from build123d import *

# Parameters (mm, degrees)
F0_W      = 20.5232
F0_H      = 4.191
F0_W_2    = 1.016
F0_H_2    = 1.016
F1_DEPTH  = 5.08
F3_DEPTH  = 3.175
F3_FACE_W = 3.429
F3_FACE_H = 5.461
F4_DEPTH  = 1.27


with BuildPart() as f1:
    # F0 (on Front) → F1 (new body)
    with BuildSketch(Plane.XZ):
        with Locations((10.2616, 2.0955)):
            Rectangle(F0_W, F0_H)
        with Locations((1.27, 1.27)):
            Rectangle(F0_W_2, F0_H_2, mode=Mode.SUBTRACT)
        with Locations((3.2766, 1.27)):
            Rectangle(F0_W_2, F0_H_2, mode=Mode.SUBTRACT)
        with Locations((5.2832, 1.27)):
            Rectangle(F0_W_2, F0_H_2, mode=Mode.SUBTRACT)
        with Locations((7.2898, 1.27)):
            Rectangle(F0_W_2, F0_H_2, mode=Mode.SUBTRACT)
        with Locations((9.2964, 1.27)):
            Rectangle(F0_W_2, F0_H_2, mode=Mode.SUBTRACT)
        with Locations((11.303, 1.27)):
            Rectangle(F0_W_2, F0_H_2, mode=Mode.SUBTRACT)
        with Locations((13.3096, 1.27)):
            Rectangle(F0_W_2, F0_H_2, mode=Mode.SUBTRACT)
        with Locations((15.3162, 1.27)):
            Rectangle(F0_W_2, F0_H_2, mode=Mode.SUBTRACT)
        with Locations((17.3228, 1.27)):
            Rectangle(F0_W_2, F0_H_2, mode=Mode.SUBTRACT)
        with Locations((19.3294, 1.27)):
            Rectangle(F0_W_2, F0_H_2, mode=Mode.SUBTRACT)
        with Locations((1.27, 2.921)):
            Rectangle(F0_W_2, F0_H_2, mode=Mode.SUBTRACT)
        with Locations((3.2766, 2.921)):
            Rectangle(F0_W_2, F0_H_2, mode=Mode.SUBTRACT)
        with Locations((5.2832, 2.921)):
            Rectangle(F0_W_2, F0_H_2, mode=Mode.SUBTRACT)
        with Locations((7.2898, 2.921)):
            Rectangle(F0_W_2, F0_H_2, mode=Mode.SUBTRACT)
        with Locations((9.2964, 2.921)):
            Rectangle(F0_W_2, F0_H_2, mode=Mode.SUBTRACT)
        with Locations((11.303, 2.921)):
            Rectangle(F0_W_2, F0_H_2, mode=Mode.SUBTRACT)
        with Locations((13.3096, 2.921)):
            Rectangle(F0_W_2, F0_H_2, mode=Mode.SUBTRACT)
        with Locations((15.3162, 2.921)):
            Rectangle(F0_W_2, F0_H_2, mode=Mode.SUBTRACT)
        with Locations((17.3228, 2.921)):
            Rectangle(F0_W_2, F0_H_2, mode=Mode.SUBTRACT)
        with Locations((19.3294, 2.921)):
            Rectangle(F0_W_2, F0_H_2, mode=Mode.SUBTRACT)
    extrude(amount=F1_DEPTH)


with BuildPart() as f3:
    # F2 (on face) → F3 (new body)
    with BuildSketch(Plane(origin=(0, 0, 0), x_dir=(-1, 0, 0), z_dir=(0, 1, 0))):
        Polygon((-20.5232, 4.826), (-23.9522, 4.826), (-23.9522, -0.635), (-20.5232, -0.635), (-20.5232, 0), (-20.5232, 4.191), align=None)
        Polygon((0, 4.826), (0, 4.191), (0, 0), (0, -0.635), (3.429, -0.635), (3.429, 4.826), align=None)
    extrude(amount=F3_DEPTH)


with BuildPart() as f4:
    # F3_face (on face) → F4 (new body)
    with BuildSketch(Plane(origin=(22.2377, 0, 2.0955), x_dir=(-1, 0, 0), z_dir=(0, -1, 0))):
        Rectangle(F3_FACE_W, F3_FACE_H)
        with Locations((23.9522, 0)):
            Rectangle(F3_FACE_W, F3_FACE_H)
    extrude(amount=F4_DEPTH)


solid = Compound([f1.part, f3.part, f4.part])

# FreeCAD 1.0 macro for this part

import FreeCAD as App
import Part
import Sketcher
Q = App.Units.Quantity

doc = App.newDocument("Part")
body = doc.addObject("PartDesign::Body", "Body")

# Sketch on XZ plane
sketch1 = doc.addObject("Sketcher::SketchObject", "Sketch")
body.addObject(sketch1)
sketch1.AttachmentSupport = (doc.XZ_Plane, [""])
sketch1.MapMode = "FlatFace"
sketch1.addGeometry(Part.LineSegment(App.Vector(0, 4.2, 0), App.Vector(0, 0, 0)), False)
sketch1.addGeometry(Part.LineSegment(App.Vector(0, 0, 0), App.Vector(20.5, 0, 0)), False)
sketch1.addGeometry(Part.LineSegment(App.Vector(20.5, 0, 0), App.Vector(20.5, 4.2, 0)), False)
sketch1.addGeometry(Part.LineSegment(App.Vector(20.5, 4.2, 0), App.Vector(0, 4.2, 0)), False)
sketch1.addGeometry(Part.LineSegment(App.Vector(1.8, 0.8, 0), App.Vector(0.8, 0.8, 0)), False)
sketch1.addGeometry(Part.LineSegment(App.Vector(0.8, 0.8, 0), App.Vector(0.8, 1.8, 0)), False)
sketch1.addGeometry(Part.LineSegment(App.Vector(0.8, 1.8, 0), App.Vector(1.8, 1.8, 0)), False)
sketch1.addGeometry(Part.LineSegment(App.Vector(1.8, 1.8, 0), App.Vector(1.8, 0.8, 0)), False)
sketch1.addGeometry(Part.LineSegment(App.Vector(3.8, 0.8, 0), App.Vector(2.8, 0.8, 0)), False)
sketch1.addGeometry(Part.LineSegment(App.Vector(2.8, 0.8, 0), App.Vector(2.8, 1.8, 0)), False)
sketch1.addGeometry(Part.LineSegment(App.Vector(2.8, 1.8, 0), App.Vector(3.8, 1.8, 0)), False)
sketch1.addGeometry(Part.LineSegment(App.Vector(3.8, 1.8, 0), App.Vector(3.8, 0.8, 0)), False)
sketch1.addGeometry(Part.LineSegment(App.Vector(5.8, 0.8, 0), App.Vector(4.8, 0.8, 0)), False)
sketch1.addGeometry(Part.LineSegment(App.Vector(4.8, 0.8, 0), App.Vector(4.8, 1.8, 0)), False)
sketch1.addGeometry(Part.LineSegment(App.Vector(4.8, 1.8, 0), App.Vector(5.8, 1.8, 0)), False)
sketch1.addGeometry(Part.LineSegment(App.Vector(5.8, 1.8, 0), App.Vector(5.8, 0.8, 0)), False)
sketch1.addGeometry(Part.LineSegment(App.Vector(7.8, 0.8, 0), App.Vector(6.8, 0.8, 0)), False)
sketch1.addGeometry(Part.LineSegment(App.Vector(6.8, 0.8, 0), App.Vector(6.8, 1.8, 0)), False)
sketch1.addGeometry(Part.LineSegment(App.Vector(6.8, 1.8, 0), App.Vector(7.8, 1.8, 0)), False)
sketch1.addGeometry(Part.LineSegment(App.Vector(7.8, 1.8, 0), App.Vector(7.8, 0.8, 0)), False)
sketch1.addGeometry(Part.LineSegment(App.Vector(9.8, 0.8, 0), App.Vector(8.8, 0.8, 0)), False)
sketch1.addGeometry(Part.LineSegment(App.Vector(8.8, 0.8, 0), App.Vector(8.8, 1.8, 0)), False)
sketch1.addGeometry(Part.LineSegment(App.Vector(8.8, 1.8, 0), App.Vector(9.8, 1.8, 0)), False)
sketch1.addGeometry(Part.LineSegment(App.Vector(9.8, 1.8, 0), App.Vector(9.8, 0.8, 0)), False)
sketch1.addGeometry(Part.LineSegment(App.Vector(11.8, 0.8, 0), App.Vector(10.8, 0.8, 0)), False)
sketch1.addGeometry(Part.LineSegment(App.Vector(10.8, 0.8, 0), App.Vector(10.8, 1.8, 0)), False)
sketch1.addGeometry(Part.LineSegment(App.Vector(10.8, 1.8, 0), App.Vector(11.8, 1.8, 0)), False)
sketch1.addGeometry(Part.LineSegment(App.Vector(11.8, 1.8, 0), App.Vector(11.8, 0.8, 0)), False)
sketch1.addGeometry(Part.LineSegment(App.Vector(13.8, 0.8, 0), App.Vector(12.8, 0.8, 0)), False)
sketch1.addGeometry(Part.LineSegment(App.Vector(12.8, 0.8, 0), App.Vector(12.8, 1.8, 0)), False)
sketch1.addGeometry(Part.LineSegment(App.Vector(12.8, 1.8, 0), App.Vector(13.8, 1.8, 0)), False)
sketch1.addGeometry(Part.LineSegment(App.Vector(13.8, 1.8, 0), App.Vector(13.8, 0.8, 0)), False)
sketch1.addGeometry(Part.LineSegment(App.Vector(15.8, 0.8, 0), App.Vector(14.8, 0.8, 0)), False)
sketch1.addGeometry(Part.LineSegment(App.Vector(14.8, 0.8, 0), App.Vector(14.8, 1.8, 0)), False)
sketch1.addGeometry(Part.LineSegment(App.Vector(14.8, 1.8, 0), App.Vector(15.8, 1.8, 0)), False)
sketch1.addGeometry(Part.LineSegment(App.Vector(15.8, 1.8, 0), App.Vector(15.8, 0.8, 0)), False)
sketch1.addGeometry(Part.LineSegment(App.Vector(17.8, 0.8, 0), App.Vector(16.8, 0.8, 0)), False)
sketch1.addGeometry(Part.LineSegment(App.Vector(16.8, 0.8, 0), App.Vector(16.8, 1.8, 0)), False)
sketch1.addGeometry(Part.LineSegment(App.Vector(16.8, 1.8, 0), App.Vector(17.8, 1.8, 0)), False)
sketch1.addGeometry(Part.LineSegment(App.Vector(17.8, 1.8, 0), App.Vector(17.8, 0.8, 0)), False)
sketch1.addGeometry(Part.LineSegment(App.Vector(19.8, 0.8, 0), App.Vector(18.8, 0.8, 0)), False)
sketch1.addGeometry(Part.LineSegment(App.Vector(18.8, 0.8, 0), App.Vector(18.8, 1.8, 0)), False)
sketch1.addGeometry(Part.LineSegment(App.Vector(18.8, 1.8, 0), App.Vector(19.8, 1.8, 0)), False)
sketch1.addGeometry(Part.LineSegment(App.Vector(19.8, 1.8, 0), App.Vector(19.8, 0.8, 0)), False)
sketch1.addGeometry(Part.LineSegment(App.Vector(1.8, 2.4, 0), App.Vector(0.8, 2.4, 0)), False)
sketch1.addGeometry(Part.LineSegment(App.Vector(0.8, 2.4, 0), App.Vector(0.8, 3.4, 0)), False)
sketch1.addGeometry(Part.LineSegment(App.Vector(0.8, 3.4, 0), App.Vector(1.8, 3.4, 0)), False)
sketch1.addGeometry(Part.LineSegment(App.Vector(1.8, 3.4, 0), App.Vector(1.8, 2.4, 0)), False)
sketch1.addGeometry(Part.LineSegment(App.Vector(3.8, 2.4, 0), App.Vector(2.8, 2.4, 0)), False)
sketch1.addGeometry(Part.LineSegment(App.Vector(2.8, 2.4, 0), App.Vector(2.8, 3.4, 0)), False)
sketch1.addGeometry(Part.LineSegment(App.Vector(2.8, 3.4, 0), App.Vector(3.8, 3.4, 0)), False)
sketch1.addGeometry(Part.LineSegment(App.Vector(3.8, 3.4, 0), App.Vector(3.8, 2.4, 0)), False)
sketch1.addGeometry(Part.LineSegment(App.Vector(5.8, 2.4, 0), App.Vector(4.8, 2.4, 0)), False)
sketch1.addGeometry(Part.LineSegment(App.Vector(4.8, 2.4, 0), App.Vector(4.8, 3.4, 0)), False)
sketch1.addGeometry(Part.LineSegment(App.Vector(4.8, 3.4, 0), App.Vector(5.8, 3.4, 0)), False)
sketch1.addGeometry(Part.LineSegment(App.Vector(5.8, 3.4, 0), App.Vector(5.8, 2.4, 0)), False)
sketch1.addGeometry(Part.LineSegment(App.Vector(7.8, 2.4, 0), App.Vector(6.8, 2.4, 0)), False)
sketch1.addGeometry(Part.LineSegment(App.Vector(6.8, 2.4, 0), App.Vector(6.8, 3.4, 0)), False)
sketch1.addGeometry(Part.LineSegment(App.Vector(6.8, 3.4, 0), App.Vector(7.8, 3.4, 0)), False)
sketch1.addGeometry(Part.LineSegment(App.Vector(7.8, 3.4, 0), App.Vector(7.8, 2.4, 0)), False)
sketch1.addGeometry(Part.LineSegment(App.Vector(9.8, 2.4, 0), App.Vector(8.8, 2.4, 0)), False)
sketch1.addGeometry(Part.LineSegment(App.Vector(8.8, 2.4, 0), App.Vector(8.8, 3.4, 0)), False)
sketch1.addGeometry(Part.LineSegment(App.Vector(8.8, 3.4, 0), App.Vector(9.8, 3.4, 0)), False)
sketch1.addGeometry(Part.LineSegment(App.Vector(9.8, 3.4, 0), App.Vector(9.8, 2.4, 0)), False)
sketch1.addGeometry(Part.LineSegment(App.Vector(11.8, 2.4, 0), App.Vector(10.8, 2.4, 0)), False)
sketch1.addGeometry(Part.LineSegment(App.Vector(10.8, 2.4, 0), App.Vector(10.8, 3.4, 0)), False)
sketch1.addGeometry(Part.LineSegment(App.Vector(10.8, 3.4, 0), App.Vector(11.8, 3.4, 0)), False)
sketch1.addGeometry(Part.LineSegment(App.Vector(11.8, 3.4, 0), App.Vector(11.8, 2.4, 0)), False)
sketch1.addGeometry(Part.LineSegment(App.Vector(13.8, 2.4, 0), App.Vector(12.8, 2.4, 0)), False)
sketch1.addGeometry(Part.LineSegment(App.Vector(12.8, 2.4, 0), App.Vector(12.8, 3.4, 0)), False)
sketch1.addGeometry(Part.LineSegment(App.Vector(12.8, 3.4, 0), App.Vector(13.8, 3.4, 0)), False)
sketch1.addGeometry(Part.LineSegment(App.Vector(13.8, 3.4, 0), App.Vector(13.8, 2.4, 0)), False)
sketch1.addGeometry(Part.LineSegment(App.Vector(15.8, 2.4, 0), App.Vector(14.8, 2.4, 0)), False)
sketch1.addGeometry(Part.LineSegment(App.Vector(14.8, 2.4, 0), App.Vector(14.8, 3.4, 0)), False)
sketch1.addGeometry(Part.LineSegment(App.Vector(14.8, 3.4, 0), App.Vector(15.8, 3.4, 0)), False)
sketch1.addGeometry(Part.LineSegment(App.Vector(15.8, 3.4, 0), App.Vector(15.8, 2.4, 0)), False)
sketch1.addGeometry(Part.LineSegment(App.Vector(17.8, 2.4, 0), App.Vector(16.8, 2.4, 0)), False)
sketch1.addGeometry(Part.LineSegment(App.Vector(16.8, 2.4, 0), App.Vector(16.8, 3.4, 0)), False)
sketch1.addGeometry(Part.LineSegment(App.Vector(16.8, 3.4, 0), App.Vector(17.8, 3.4, 0)), False)
sketch1.addGeometry(Part.LineSegment(App.Vector(17.8, 3.4, 0), App.Vector(17.8, 2.4, 0)), False)
sketch1.addGeometry(Part.LineSegment(App.Vector(19.8, 2.4, 0), App.Vector(18.8, 2.4, 0)), False)
sketch1.addGeometry(Part.LineSegment(App.Vector(18.8, 2.4, 0), App.Vector(18.8, 3.4, 0)), False)
sketch1.addGeometry(Part.LineSegment(App.Vector(18.8, 3.4, 0), App.Vector(19.8, 3.4, 0)), False)
sketch1.addGeometry(Part.LineSegment(App.Vector(19.8, 3.4, 0), App.Vector(19.8, 2.4, 0)), False)
sketch1.addConstraint(Sketcher.Constraint("Coincident", 0, 2, 1, 1))
sketch1.addConstraint(Sketcher.Constraint("Coincident", 1, 2, 2, 1))
sketch1.addConstraint(Sketcher.Constraint("Coincident", 2, 2, 3, 1))
sketch1.addConstraint(Sketcher.Constraint("Coincident", 3, 2, 0, 1))
sketch1.addConstraint(Sketcher.Constraint("Coincident", 4, 2, 5, 1))
sketch1.addConstraint(Sketcher.Constraint("Coincident", 5, 2, 6, 1))
sketch1.addConstraint(Sketcher.Constraint("Coincident", 6, 2, 7, 1))
sketch1.addConstraint(Sketcher.Constraint("Coincident", 7, 2, 4, 1))
sketch1.addConstraint(Sketcher.Constraint("Coincident", 8, 2, 9, 1))
sketch1.addConstraint(Sketcher.Constraint("Coincident", 9, 2, 10, 1))
sketch1.addConstraint(Sketcher.Constraint("Coincident", 10, 2, 11, 1))
sketch1.addConstraint(Sketcher.Constraint("Coincident", 11, 2, 8, 1))
sketch1.addConstraint(Sketcher.Constraint("Coincident", 12, 2, 13, 1))
sketch1.addConstraint(Sketcher.Constraint("Coincident", 13, 2, 14, 1))
sketch1.addConstraint(Sketcher.Constraint("Coincident", 14, 2, 15, 1))
sketch1.addConstraint(Sketcher.Constraint("Coincident", 15, 2, 12, 1))
sketch1.addConstraint(Sketcher.Constraint("Coincident", 16, 2, 17, 1))
sketch1.addConstraint(Sketcher.Constraint("Coincident", 17, 2, 18, 1))
sketch1.addConstraint(Sketcher.Constraint("Coincident", 18, 2, 19, 1))
sketch1.addConstraint(Sketcher.Constraint("Coincident", 19, 2, 16, 1))
sketch1.addConstraint(Sketcher.Constraint("Coincident", 20, 2, 21, 1))
sketch1.addConstraint(Sketcher.Constraint("Coincident", 21, 2, 22, 1))
sketch1.addConstraint(Sketcher.Constraint("Coincident", 22, 2, 23, 1))
sketch1.addConstraint(Sketcher.Constraint("Coincident", 23, 2, 20, 1))
sketch1.addConstraint(Sketcher.Constraint("Coincident", 24, 2, 25, 1))
sketch1.addConstraint(Sketcher.Constraint("Coincident", 25, 2, 26, 1))
sketch1.addConstraint(Sketcher.Constraint("Coincident", 26, 2, 27, 1))
sketch1.addConstraint(Sketcher.Constraint("Coincident", 27, 2, 24, 1))
sketch1.addConstraint(Sketcher.Constraint("Coincident", 28, 2, 29, 1))
sketch1.addConstraint(Sketcher.Constraint("Coincident", 29, 2, 30, 1))
sketch1.addConstraint(Sketcher.Constraint("Coincident", 30, 2, 31, 1))
sketch1.addConstraint(Sketcher.Constraint("Coincident", 31, 2, 28, 1))
sketch1.addConstraint(Sketcher.Constraint("Coincident", 32, 2, 33, 1))
sketch1.addConstraint(Sketcher.Constraint("Coincident", 33, 2, 34, 1))
sketch1.addConstraint(Sketcher.Constraint("Coincident", 34, 2, 35, 1))
sketch1.addConstraint(Sketcher.Constraint("Coincident", 35, 2, 32, 1))
sketch1.addConstraint(Sketcher.Constraint("Coincident", 36, 2, 37, 1))
sketch1.addConstraint(Sketcher.Constraint("Coincident", 37, 2, 38, 1))
sketch1.addConstraint(Sketcher.Constraint("Coincident", 38, 2, 39, 1))
sketch1.addConstraint(Sketcher.Constraint("Coincident", 39, 2, 36, 1))
sketch1.addConstraint(Sketcher.Constraint("Coincident", 40, 2, 41, 1))
sketch1.addConstraint(Sketcher.Constraint("Coincident", 41, 2, 42, 1))
sketch1.addConstraint(Sketcher.Constraint("Coincident", 42, 2, 43, 1))
sketch1.addConstraint(Sketcher.Constraint("Coincident", 43, 2, 40, 1))
sketch1.addConstraint(Sketcher.Constraint("Coincident", 44, 2, 45, 1))
sketch1.addConstraint(Sketcher.Constraint("Coincident", 45, 2, 46, 1))
sketch1.addConstraint(Sketcher.Constraint("Coincident", 46, 2, 47, 1))
sketch1.addConstraint(Sketcher.Constraint("Coincident", 47, 2, 44, 1))
sketch1.addConstraint(Sketcher.Constraint("Coincident", 48, 2, 49, 1))
sketch1.addConstraint(Sketcher.Constraint("Coincident", 49, 2, 50, 1))
sketch1.addConstraint(Sketcher.Constraint("Coincident", 50, 2, 51, 1))
sketch1.addConstraint(Sketcher.Constraint("Coincident", 51, 2, 48, 1))
sketch1.addConstraint(Sketcher.Constraint("Coincident", 52, 2, 53, 1))
sketch1.addConstraint(Sketcher.Constraint("Coincident", 53, 2, 54, 1))
sketch1.addConstraint(Sketcher.Constraint("Coincident", 54, 2, 55, 1))
sketch1.addConstraint(Sketcher.Constraint("Coincident", 55, 2, 52, 1))
sketch1.addConstraint(Sketcher.Constraint("Coincident", 56, 2, 57, 1))
sketch1.addConstraint(Sketcher.Constraint("Coincident", 57, 2, 58, 1))
sketch1.addConstraint(Sketcher.Constraint("Coincident", 58, 2, 59, 1))
sketch1.addConstraint(Sketcher.Constraint("Coincident", 59, 2, 56, 1))
sketch1.addConstraint(Sketcher.Constraint("Coincident", 60, 2, 61, 1))
sketch1.addConstraint(Sketcher.Constraint("Coincident", 61, 2, 62, 1))
sketch1.addConstraint(Sketcher.Constraint("Coincident", 62, 2, 63, 1))
sketch1.addConstraint(Sketcher.Constraint("Coincident", 63, 2, 60, 1))
sketch1.addConstraint(Sketcher.Constraint("Coincident", 64, 2, 65, 1))
sketch1.addConstraint(Sketcher.Constraint("Coincident", 65, 2, 66, 1))
sketch1.addConstraint(Sketcher.Constraint("Coincident", 66, 2, 67, 1))
sketch1.addConstraint(Sketcher.Constraint("Coincident", 67, 2, 64, 1))
sketch1.addConstraint(Sketcher.Constraint("Coincident", 68, 2, 69, 1))
sketch1.addConstraint(Sketcher.Constraint("Coincident", 69, 2, 70, 1))
sketch1.addConstraint(Sketcher.Constraint("Coincident", 70, 2, 71, 1))
sketch1.addConstraint(Sketcher.Constraint("Coincident", 71, 2, 68, 1))
sketch1.addConstraint(Sketcher.Constraint("Coincident", 72, 2, 73, 1))
sketch1.addConstraint(Sketcher.Constraint("Coincident", 73, 2, 74, 1))
sketch1.addConstraint(Sketcher.Constraint("Coincident", 74, 2, 75, 1))
sketch1.addConstraint(Sketcher.Constraint("Coincident", 75, 2, 72, 1))
sketch1.addConstraint(Sketcher.Constraint("Coincident", 76, 2, 77, 1))
sketch1.addConstraint(Sketcher.Constraint("Coincident", 77, 2, 78, 1))
sketch1.addConstraint(Sketcher.Constraint("Coincident", 78, 2, 79, 1))
sketch1.addConstraint(Sketcher.Constraint("Coincident", 79, 2, 76, 1))
sketch1.addConstraint(Sketcher.Constraint("Coincident", 80, 2, 81, 1))
sketch1.addConstraint(Sketcher.Constraint("Coincident", 81, 2, 82, 1))
sketch1.addConstraint(Sketcher.Constraint("Coincident", 82, 2, 83, 1))
sketch1.addConstraint(Sketcher.Constraint("Coincident", 83, 2, 80, 1))
sketch1.addConstraint(Sketcher.Constraint("Vertical", 0))
sketch1.addConstraint(Sketcher.Constraint("Horizontal", 1))
sketch1.addConstraint(Sketcher.Constraint("Vertical", 2))
sketch1.addConstraint(Sketcher.Constraint("Horizontal", 3))
sketch1.addConstraint(Sketcher.Constraint("Horizontal", 4))
sketch1.addConstraint(Sketcher.Constraint("Vertical", 5))
sketch1.addConstraint(Sketcher.Constraint("Horizontal", 6))
sketch1.addConstraint(Sketcher.Constraint("Vertical", 7))
sketch1.addConstraint(Sketcher.Constraint("Horizontal", 8))
sketch1.addConstraint(Sketcher.Constraint("Vertical", 9))
sketch1.addConstraint(Sketcher.Constraint("Horizontal", 10))
sketch1.addConstraint(Sketcher.Constraint("Vertical", 11))
sketch1.addConstraint(Sketcher.Constraint("Horizontal", 12))
sketch1.addConstraint(Sketcher.Constraint("Vertical", 13))
sketch1.addConstraint(Sketcher.Constraint("Horizontal", 14))
sketch1.addConstraint(Sketcher.Constraint("Vertical", 15))
sketch1.addConstraint(Sketcher.Constraint("Horizontal", 16))
sketch1.addConstraint(Sketcher.Constraint("Vertical", 17))
sketch1.addConstraint(Sketcher.Constraint("Horizontal", 18))
sketch1.addConstraint(Sketcher.Constraint("Vertical", 19))
sketch1.addConstraint(Sketcher.Constraint("Horizontal", 20))
sketch1.addConstraint(Sketcher.Constraint("Vertical", 21))
sketch1.addConstraint(Sketcher.Constraint("Horizontal", 22))
sketch1.addConstraint(Sketcher.Constraint("Vertical", 23))
sketch1.addConstraint(Sketcher.Constraint("Horizontal", 24))
sketch1.addConstraint(Sketcher.Constraint("Vertical", 25))
sketch1.addConstraint(Sketcher.Constraint("Horizontal", 26))
sketch1.addConstraint(Sketcher.Constraint("Vertical", 27))
sketch1.addConstraint(Sketcher.Constraint("Horizontal", 28))
sketch1.addConstraint(Sketcher.Constraint("Vertical", 29))
sketch1.addConstraint(Sketcher.Constraint("Horizontal", 30))
sketch1.addConstraint(Sketcher.Constraint("Vertical", 31))
sketch1.addConstraint(Sketcher.Constraint("Horizontal", 32))
sketch1.addConstraint(Sketcher.Constraint("Vertical", 33))
sketch1.addConstraint(Sketcher.Constraint("Horizontal", 34))
sketch1.addConstraint(Sketcher.Constraint("Vertical", 35))
sketch1.addConstraint(Sketcher.Constraint("Horizontal", 36))
sketch1.addConstraint(Sketcher.Constraint("Vertical", 37))
sketch1.addConstraint(Sketcher.Constraint("Horizontal", 38))
sketch1.addConstraint(Sketcher.Constraint("Vertical", 39))
sketch1.addConstraint(Sketcher.Constraint("Horizontal", 40))
sketch1.addConstraint(Sketcher.Constraint("Vertical", 41))
sketch1.addConstraint(Sketcher.Constraint("Horizontal", 42))
sketch1.addConstraint(Sketcher.Constraint("Vertical", 43))
sketch1.addConstraint(Sketcher.Constraint("Horizontal", 44))
sketch1.addConstraint(Sketcher.Constraint("Vertical", 45))
sketch1.addConstraint(Sketcher.Constraint("Horizontal", 46))
sketch1.addConstraint(Sketcher.Constraint("Vertical", 47))
sketch1.addConstraint(Sketcher.Constraint("Horizontal", 48))
sketch1.addConstraint(Sketcher.Constraint("Vertical", 49))
sketch1.addConstraint(Sketcher.Constraint("Horizontal", 50))
sketch1.addConstraint(Sketcher.Constraint("Vertical", 51))
sketch1.addConstraint(Sketcher.Constraint("Horizontal", 52))
sketch1.addConstraint(Sketcher.Constraint("Vertical", 53))
sketch1.addConstraint(Sketcher.Constraint("Horizontal", 54))
sketch1.addConstraint(Sketcher.Constraint("Vertical", 55))
sketch1.addConstraint(Sketcher.Constraint("Horizontal", 56))
sketch1.addConstraint(Sketcher.Constraint("Vertical", 57))
sketch1.addConstraint(Sketcher.Constraint("Horizontal", 58))
sketch1.addConstraint(Sketcher.Constraint("Vertical", 59))
sketch1.addConstraint(Sketcher.Constraint("Horizontal", 60))
sketch1.addConstraint(Sketcher.Constraint("Vertical", 61))
sketch1.addConstraint(Sketcher.Constraint("Horizontal", 62))
sketch1.addConstraint(Sketcher.Constraint("Vertical", 63))
sketch1.addConstraint(Sketcher.Constraint("Horizontal", 64))
sketch1.addConstraint(Sketcher.Constraint("Vertical", 65))
sketch1.addConstraint(Sketcher.Constraint("Horizontal", 66))
sketch1.addConstraint(Sketcher.Constraint("Vertical", 67))
sketch1.addConstraint(Sketcher.Constraint("Horizontal", 68))
sketch1.addConstraint(Sketcher.Constraint("Vertical", 69))
sketch1.addConstraint(Sketcher.Constraint("Horizontal", 70))
sketch1.addConstraint(Sketcher.Constraint("Vertical", 71))
sketch1.addConstraint(Sketcher.Constraint("Horizontal", 72))
sketch1.addConstraint(Sketcher.Constraint("Vertical", 73))
sketch1.addConstraint(Sketcher.Constraint("Horizontal", 74))
sketch1.addConstraint(Sketcher.Constraint("Vertical", 75))
sketch1.addConstraint(Sketcher.Constraint("Horizontal", 76))
sketch1.addConstraint(Sketcher.Constraint("Vertical", 77))
sketch1.addConstraint(Sketcher.Constraint("Horizontal", 78))
sketch1.addConstraint(Sketcher.Constraint("Vertical", 79))
sketch1.addConstraint(Sketcher.Constraint("Horizontal", 80))
sketch1.addConstraint(Sketcher.Constraint("Vertical", 81))
sketch1.addConstraint(Sketcher.Constraint("Horizontal", 82))
sketch1.addConstraint(Sketcher.Constraint("Vertical", 83))
sketch1.addConstraint(Sketcher.Constraint("Coincident", 0, 2, -1, 1))
sketch1.addConstraint(Sketcher.Constraint("Horizontal", 7, 2, 8, 2))
sketch1.addConstraint(Sketcher.Constraint("Horizontal", 6, 2, 9, 2))
sketch1.addConstraint(Sketcher.Constraint("Horizontal", 11, 2, 12, 2))
sketch1.addConstraint(Sketcher.Constraint("Horizontal", 10, 2, 13, 2))
sketch1.addConstraint(Sketcher.Constraint("Horizontal", 15, 2, 16, 2))
sketch1.addConstraint(Sketcher.Constraint("Horizontal", 14, 2, 17, 2))
sketch1.addConstraint(Sketcher.Constraint("Horizontal", 19, 2, 20, 2))
sketch1.addConstraint(Sketcher.Constraint("Horizontal", 18, 2, 21, 2))
sketch1.addConstraint(Sketcher.Constraint("Horizontal", 23, 2, 24, 2))
sketch1.addConstraint(Sketcher.Constraint("Horizontal", 22, 2, 25, 2))
sketch1.addConstraint(Sketcher.Constraint("Horizontal", 27, 2, 28, 2))
sketch1.addConstraint(Sketcher.Constraint("Horizontal", 26, 2, 29, 2))
sketch1.addConstraint(Sketcher.Constraint("Horizontal", 31, 2, 32, 2))
sketch1.addConstraint(Sketcher.Constraint("Horizontal", 30, 2, 33, 2))
sketch1.addConstraint(Sketcher.Constraint("Horizontal", 35, 2, 36, 2))
sketch1.addConstraint(Sketcher.Constraint("Horizontal", 34, 2, 37, 2))
sketch1.addConstraint(Sketcher.Constraint("Horizontal", 39, 2, 40, 2))
sketch1.addConstraint(Sketcher.Constraint("Horizontal", 38, 2, 41, 2))
sketch1.addConstraint(Sketcher.Constraint("Horizontal", 47, 2, 48, 2))
sketch1.addConstraint(Sketcher.Constraint("Horizontal", 46, 2, 49, 2))
sketch1.addConstraint(Sketcher.Constraint("Horizontal", 51, 2, 52, 2))
sketch1.addConstraint(Sketcher.Constraint("Horizontal", 50, 2, 53, 2))
sketch1.addConstraint(Sketcher.Constraint("Horizontal", 55, 2, 56, 2))
sketch1.addConstraint(Sketcher.Constraint("Horizontal", 54, 2, 57, 2))
sketch1.addConstraint(Sketcher.Constraint("Horizontal", 59, 2, 60, 2))
sketch1.addConstraint(Sketcher.Constraint("Horizontal", 58, 2, 61, 2))
sketch1.addConstraint(Sketcher.Constraint("Horizontal", 63, 2, 64, 2))
sketch1.addConstraint(Sketcher.Constraint("Horizontal", 62, 2, 65, 2))
sketch1.addConstraint(Sketcher.Constraint("Horizontal", 67, 2, 68, 2))
sketch1.addConstraint(Sketcher.Constraint("Horizontal", 66, 2, 69, 2))
sketch1.addConstraint(Sketcher.Constraint("Horizontal", 71, 2, 72, 2))
sketch1.addConstraint(Sketcher.Constraint("Horizontal", 70, 2, 73, 2))
sketch1.addConstraint(Sketcher.Constraint("Horizontal", 75, 2, 76, 2))
sketch1.addConstraint(Sketcher.Constraint("Horizontal", 74, 2, 77, 2))
sketch1.addConstraint(Sketcher.Constraint("Horizontal", 79, 2, 80, 2))
sketch1.addConstraint(Sketcher.Constraint("Horizontal", 78, 2, 81, 2))
sketch1.addConstraint(Sketcher.Constraint("Vertical", 5, 2, 44, 2))
sketch1.addConstraint(Sketcher.Constraint("Vertical", 7, 2, 46, 2))
sketch1.addConstraint(Sketcher.Constraint("Vertical", 9, 2, 48, 2))
sketch1.addConstraint(Sketcher.Constraint("Vertical", 11, 2, 50, 2))
sketch1.addConstraint(Sketcher.Constraint("Vertical", 13, 2, 52, 2))
sketch1.addConstraint(Sketcher.Constraint("Vertical", 15, 2, 54, 2))
sketch1.addConstraint(Sketcher.Constraint("Vertical", 17, 2, 56, 2))
sketch1.addConstraint(Sketcher.Constraint("Vertical", 19, 2, 58, 2))
sketch1.addConstraint(Sketcher.Constraint("Vertical", 21, 2, 60, 2))
sketch1.addConstraint(Sketcher.Constraint("Vertical", 23, 2, 62, 2))
sketch1.addConstraint(Sketcher.Constraint("Vertical", 25, 2, 64, 2))
sketch1.addConstraint(Sketcher.Constraint("Vertical", 27, 2, 66, 2))
sketch1.addConstraint(Sketcher.Constraint("Vertical", 29, 2, 68, 2))
sketch1.addConstraint(Sketcher.Constraint("Vertical", 31, 2, 70, 2))
sketch1.addConstraint(Sketcher.Constraint("Vertical", 33, 2, 72, 2))
sketch1.addConstraint(Sketcher.Constraint("Vertical", 35, 2, 74, 2))
sketch1.addConstraint(Sketcher.Constraint("Vertical", 37, 2, 76, 2))
sketch1.addConstraint(Sketcher.Constraint("Vertical", 39, 2, 78, 2))
sketch1.addConstraint(Sketcher.Constraint("Vertical", 41, 2, 80, 2))
sketch1.addConstraint(Sketcher.Constraint("Vertical", 43, 2, 82, 2))
sketch1.addConstraint(Sketcher.Constraint("Equal", 6, 8))
sketch1.addConstraint(Sketcher.Constraint("Equal", 10, 12))
sketch1.addConstraint(Sketcher.Constraint("Equal", 14, 16))
sketch1.addConstraint(Sketcher.Constraint("Equal", 18, 20))
sketch1.addConstraint(Sketcher.Constraint("Equal", 22, 24))
sketch1.addConstraint(Sketcher.Constraint("Equal", 26, 28))
sketch1.addConstraint(Sketcher.Constraint("Equal", 30, 32))
sketch1.addConstraint(Sketcher.Constraint("Equal", 34, 36))
sketch1.addConstraint(Sketcher.Constraint("Equal", 38, 40))
sketch1.addConstraint(Sketcher.Constraint("Equal", 82, 5))
sketch1.addConstraint(Sketcher.Constraint("Equal", 43, 45))
sketch1.addConstraint(Sketcher.Constraint("DistanceX", 4, 2, 4, 1, Q("0.04 in")))
sketch1.addConstraint(Sketcher.Constraint("DistanceX", 1, 1, 1, 2, Q("0.808 in")))
sketch1.addConstraint(Sketcher.Constraint("DistanceY", 0, 2, 0, 1, Q("0.165 in")))
sketch1.addConstraint(Sketcher.Constraint("DistanceX", -1, 1, 4, 2, Q("0.03 in")))
sketch1.addConstraint(Sketcher.Constraint("DistanceY", -1, 1, 4, 2, Q("0.03 in")))
sketch1.addConstraint(Sketcher.Constraint("DistanceX", -1, 1, 8, 2, Q("0.109 in")))
sketch1.addConstraint(Sketcher.Constraint("DistanceX", -1, 1, 12, 2, Q("0.188 in")))
sketch1.addConstraint(Sketcher.Constraint("DistanceX", -1, 1, 16, 2, Q("0.267 in")))
sketch1.addConstraint(Sketcher.Constraint("DistanceX", -1, 1, 20, 2, Q("0.346 in")))
sketch1.addConstraint(Sketcher.Constraint("DistanceX", -1, 1, 24, 2, Q("0.425 in")))
sketch1.addConstraint(Sketcher.Constraint("DistanceX", -1, 1, 28, 2, Q("0.504 in")))
sketch1.addConstraint(Sketcher.Constraint("DistanceX", -1, 1, 32, 2, Q("0.583 in")))
sketch1.addConstraint(Sketcher.Constraint("DistanceX", -1, 1, 36, 2, Q("0.662 in")))
sketch1.addConstraint(Sketcher.Constraint("DistanceX", -1, 1, 40, 2, Q("0.741 in")))
sketch1.addConstraint(Sketcher.Constraint("DistanceY", -1, 1, 44, 2, Q("0.095 in")))
pad1 = doc.addObject("PartDesign::Pad", "Pad")
body.addObject(pad1)
pad1.Profile = sketch1
pad1.Length = Q("0.2 in")
body2 = doc.addObject("PartDesign::Body", "Body001")
body2.AllowCompound = True

# Sketch on XZ plane
sketch2 = doc.addObject("Sketcher::SketchObject", "Sketch001")
body2.addObject(sketch2)
sketch2.AttachmentSupport = (doc.getObject("XZ_Plane001"), [""])
sketch2.MapMode = "FlatFace"
sketch2.addGeometry(Part.LineSegment(App.Vector(20.5, 4.8, 0), App.Vector(24, 4.8, 0)), False)
sketch2.addGeometry(Part.LineSegment(App.Vector(24, 4.8, 0), App.Vector(24, -0.6, 0)), False)
sketch2.addGeometry(Part.LineSegment(App.Vector(24, -0.6, 0), App.Vector(20.5, -0.6, 0)), False)
sketch2.addGeometry(Part.LineSegment(App.Vector(20.5, -0.6, 0), App.Vector(20.5, 4.8, 0)), False)
sketch2.addGeometry(Part.LineSegment(App.Vector(0, 4.8, 0), App.Vector(0, -0.6, 0)), False)
sketch2.addGeometry(Part.LineSegment(App.Vector(0, -0.6, 0), App.Vector(-3.4, -0.6, 0)), False)
sketch2.addGeometry(Part.LineSegment(App.Vector(-3.4, -0.6, 0), App.Vector(-3.4, 4.8, 0)), False)
sketch2.addGeometry(Part.LineSegment(App.Vector(-3.4, 4.8, 0), App.Vector(0, 4.8, 0)), False)
sketch2.addConstraint(Sketcher.Constraint("Coincident", 0, 2, 1, 1))
sketch2.addConstraint(Sketcher.Constraint("Coincident", 1, 2, 2, 1))
sketch2.addConstraint(Sketcher.Constraint("Coincident", 2, 2, 3, 1))
sketch2.addConstraint(Sketcher.Constraint("Coincident", 3, 2, 0, 1))
sketch2.addConstraint(Sketcher.Constraint("Coincident", 4, 2, 5, 1))
sketch2.addConstraint(Sketcher.Constraint("Coincident", 5, 2, 6, 1))
sketch2.addConstraint(Sketcher.Constraint("Coincident", 6, 2, 7, 1))
sketch2.addConstraint(Sketcher.Constraint("Coincident", 7, 2, 4, 1))
sketch2.addConstraint(Sketcher.Constraint("Horizontal", 0))
sketch2.addConstraint(Sketcher.Constraint("Vertical", 1))
sketch2.addConstraint(Sketcher.Constraint("Horizontal", 2))
sketch2.addConstraint(Sketcher.Constraint("Vertical", 3))
sketch2.addConstraint(Sketcher.Constraint("Vertical", 4))
sketch2.addConstraint(Sketcher.Constraint("Horizontal", 5))
sketch2.addConstraint(Sketcher.Constraint("Vertical", 6))
sketch2.addConstraint(Sketcher.Constraint("Horizontal", 7))
sketch2.addConstraint(Sketcher.Constraint("PointOnObject", 4, 2, -2))
sketch2.addConstraint(Sketcher.Constraint("Horizontal", 2, 2, 4, 2))
sketch2.addConstraint(Sketcher.Constraint("Horizontal", 3, 2, 6, 2))
sketch2.addConstraint(Sketcher.Constraint("Equal", 2, 5))
sketch2.addConstraint(Sketcher.Constraint("DistanceX", 0, 1, 0, 2, Q("0.135 in")))
sketch2.addConstraint(Sketcher.Constraint("DistanceY", 1, 2, 1, 1, Q("0.215 in")))
sketch2.addConstraint(Sketcher.Constraint("DistanceY", -1, 1, 0, 2, Q("0.19 in")))
sketch2.addConstraint(Sketcher.Constraint("DistanceX", -1, 1, 0, 2, Q("0.943 in")))
pad2 = doc.addObject("PartDesign::Pad", "Pad001")
body2.addObject(pad2)
pad2.Profile = sketch2
pad2.Length = Q("0.125 in")
pad2.Reversed = True
body3 = doc.addObject("PartDesign::Body", "Body002")
body3.AllowCompound = True

# Sketch on XZ plane
sketch3 = doc.addObject("Sketcher::SketchObject", "Sketch002")
body3.addObject(sketch3)
sketch3.AttachmentSupport = (doc.getObject("XZ_Plane002"), [""])
sketch3.MapMode = "FlatFace"
sketch3.addGeometry(Part.LineSegment(App.Vector(24, -0.6, 0), App.Vector(24, 4.8, 0)), False)
sketch3.addGeometry(Part.LineSegment(App.Vector(24, 4.8, 0), App.Vector(20.5, 4.8, 0)), False)
sketch3.addGeometry(Part.LineSegment(App.Vector(20.5, 4.8, 0), App.Vector(20.5, -0.6, 0)), False)
sketch3.addGeometry(Part.LineSegment(App.Vector(20.5, -0.6, 0), App.Vector(24, -0.6, 0)), False)
sketch3.addGeometry(Part.LineSegment(App.Vector(0, -0.6, 0), App.Vector(0, 4.8, 0)), False)
sketch3.addGeometry(Part.LineSegment(App.Vector(0, 4.8, 0), App.Vector(-3.4, 4.8, 0)), False)
sketch3.addGeometry(Part.LineSegment(App.Vector(-3.4, 4.8, 0), App.Vector(-3.4, -0.6, 0)), False)
sketch3.addGeometry(Part.LineSegment(App.Vector(-3.4, -0.6, 0), App.Vector(0, -0.6, 0)), False)
sketch3.addConstraint(Sketcher.Constraint("Coincident", 0, 2, 1, 1))
sketch3.addConstraint(Sketcher.Constraint("Coincident", 1, 2, 2, 1))
sketch3.addConstraint(Sketcher.Constraint("Coincident", 2, 2, 3, 1))
sketch3.addConstraint(Sketcher.Constraint("Coincident", 3, 2, 0, 1))
sketch3.addConstraint(Sketcher.Constraint("Coincident", 4, 2, 5, 1))
sketch3.addConstraint(Sketcher.Constraint("Coincident", 5, 2, 6, 1))
sketch3.addConstraint(Sketcher.Constraint("Coincident", 6, 2, 7, 1))
sketch3.addConstraint(Sketcher.Constraint("Coincident", 7, 2, 4, 1))
sketch3.addConstraint(Sketcher.Constraint("Vertical", 0))
sketch3.addConstraint(Sketcher.Constraint("Horizontal", 1))
sketch3.addConstraint(Sketcher.Constraint("Vertical", 2))
sketch3.addConstraint(Sketcher.Constraint("Horizontal", 3))
sketch3.addConstraint(Sketcher.Constraint("Vertical", 4))
sketch3.addConstraint(Sketcher.Constraint("Horizontal", 5))
sketch3.addConstraint(Sketcher.Constraint("Vertical", 6))
sketch3.addConstraint(Sketcher.Constraint("Horizontal", 7))
sketch3.addConstraint(Sketcher.Constraint("PointOnObject", 4, 2, -2))
sketch3.addConstraint(Sketcher.Constraint("Horizontal", 1, 2, 4, 2))
sketch3.addConstraint(Sketcher.Constraint("Horizontal", 3, 2, 6, 2))
sketch3.addConstraint(Sketcher.Constraint("Equal", 3, 5))
sketch3.addConstraint(Sketcher.Constraint("DistanceX", 1, 2, 1, 1, Q("0.135 in")))
sketch3.addConstraint(Sketcher.Constraint("DistanceY", 0, 1, 0, 2, Q("0.215 in")))
sketch3.addConstraint(Sketcher.Constraint("DistanceY", -1, 1, 0, 2, Q("0.19 in")))
sketch3.addConstraint(Sketcher.Constraint("DistanceX", -1, 1, 0, 2, Q("0.943 in")))
pad3 = doc.addObject("PartDesign::Pad", "Pad002")
body3.addObject(pad3)
pad3.Profile = sketch3
pad3.Length = Q("0.05 in")

doc.recompute()
